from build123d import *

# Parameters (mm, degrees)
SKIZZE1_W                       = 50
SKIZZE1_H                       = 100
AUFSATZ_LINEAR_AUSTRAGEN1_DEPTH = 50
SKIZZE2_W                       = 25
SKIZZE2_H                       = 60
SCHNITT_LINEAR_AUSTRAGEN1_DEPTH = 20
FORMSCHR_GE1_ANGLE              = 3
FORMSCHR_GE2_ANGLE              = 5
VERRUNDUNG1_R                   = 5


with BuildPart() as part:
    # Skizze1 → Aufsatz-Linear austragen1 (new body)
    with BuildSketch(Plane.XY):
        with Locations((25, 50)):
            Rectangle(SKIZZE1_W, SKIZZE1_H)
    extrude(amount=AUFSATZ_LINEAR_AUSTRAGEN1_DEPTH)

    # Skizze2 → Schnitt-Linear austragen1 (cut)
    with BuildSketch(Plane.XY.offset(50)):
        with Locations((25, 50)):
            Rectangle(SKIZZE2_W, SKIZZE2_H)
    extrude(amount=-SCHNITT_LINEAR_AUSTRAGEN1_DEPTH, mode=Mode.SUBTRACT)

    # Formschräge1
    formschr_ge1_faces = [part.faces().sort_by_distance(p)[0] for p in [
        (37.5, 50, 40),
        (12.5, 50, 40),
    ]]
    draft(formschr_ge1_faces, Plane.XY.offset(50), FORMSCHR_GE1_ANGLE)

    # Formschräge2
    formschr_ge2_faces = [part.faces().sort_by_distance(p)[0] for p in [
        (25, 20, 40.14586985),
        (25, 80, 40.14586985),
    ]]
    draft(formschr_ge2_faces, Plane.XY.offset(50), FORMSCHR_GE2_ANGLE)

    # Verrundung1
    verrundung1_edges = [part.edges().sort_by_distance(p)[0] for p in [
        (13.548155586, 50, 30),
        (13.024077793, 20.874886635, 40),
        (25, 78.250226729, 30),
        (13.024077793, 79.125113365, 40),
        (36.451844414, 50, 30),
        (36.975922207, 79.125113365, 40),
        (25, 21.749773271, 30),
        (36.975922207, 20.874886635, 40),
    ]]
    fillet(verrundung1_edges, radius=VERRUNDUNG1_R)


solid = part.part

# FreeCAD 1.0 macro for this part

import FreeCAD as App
import Part
import Sketcher
from FreeCAD import Vector
Q = App.Units.Quantity


def edges_at(feature, points):
    """Names of the edges that pass closest to the given points."""
    edges = feature.Shape.Edges
    near = lambda p: min(range(len(edges)), key=lambda i: edges[i].distToShape(Part.Vertex(*p))[0])
    return sorted({f"Edge{near(p) + 1}" for p in points})


def faces_at(feature, points):
    """Names of the faces that lie closest to the given points."""
    faces = feature.Shape.Faces
    near = lambda p: min(range(len(faces)), key=lambda i: faces[i].distToShape(Part.Vertex(*p))[0])
    return sorted({f"Face{near(p) + 1}" for p in points})

doc = App.newDocument("Part")
body = doc.addObject("PartDesign::Body", "Body")

sketch1 = body.newObject("Sketcher::SketchObject", "Sketch")
sketch1.AttachmentSupport = (doc.getObject("XY_Plane"), [""])
sketch1.MapMode = "FlatFace"
sketch1.addGeometry(Part.LineSegment(Vector(0, 100, 0), Vector(0, 0, 0)), False)
sketch1.addGeometry(Part.LineSegment(Vector(0, 0, 0), Vector(50, 0, 0)), False)
sketch1.addGeometry(Part.LineSegment(Vector(50, 0, 0), Vector(50, 100, 0)), False)
sketch1.addGeometry(Part.LineSegment(Vector(50, 100, 0), Vector(0, 100, 0)), False)
sketch1.addConstraint(Sketcher.Constraint("Coincident", 0, 2, 1, 1))
sketch1.addConstraint(Sketcher.Constraint("Coincident", 1, 2, 2, 1))
sketch1.addConstraint(Sketcher.Constraint("Coincident", 2, 2, 3, 1))
sketch1.addConstraint(Sketcher.Constraint("Coincident", 3, 2, 0, 1))
sketch1.addConstraint(Sketcher.Constraint("Vertical", 0))
sketch1.addConstraint(Sketcher.Constraint("Horizontal", 1))
sketch1.addConstraint(Sketcher.Constraint("Vertical", 2))
sketch1.addConstraint(Sketcher.Constraint("Horizontal", 3))
sketch1.addConstraint(Sketcher.Constraint("Coincident", 0, 2, -1, 1))
sketch1.addConstraint(Sketcher.Constraint("DistanceX", 1, 1, 1, 2, Q("50 mm")))
sketch1.addConstraint(Sketcher.Constraint("DistanceY", 0, 2, 0, 1, Q("100 mm")))
pad1 = body.newObject("PartDesign::Pad", "Pad")
pad1.Profile = sketch1
pad1.Length = 50

sketch2 = body.newObject("Sketcher::SketchObject", "Sketch001")
sketch2.AttachmentSupport = (doc.getObject("XY_Plane"), [""])
sketch2.MapMode = "FlatFace"
sketch2.AttachmentOffset = App.Placement(Vector(0, 0, 50), App.Rotation())
sketch2.addGeometry(Part.LineSegment(Vector(12.5, 80, 0), Vector(12.5, 20, 0)), False)
sketch2.addGeometry(Part.LineSegment(Vector(12.5, 20, 0), Vector(37.5, 20, 0)), False)
sketch2.addGeometry(Part.LineSegment(Vector(37.5, 20, 0), Vector(37.5, 80, 0)), False)
sketch2.addGeometry(Part.LineSegment(Vector(37.5, 80, 0), Vector(12.5, 80, 0)), False)
sketch2.addConstraint(Sketcher.Constraint("Coincident", 0, 2, 1, 1))
sketch2.addConstraint(Sketcher.Constraint("Coincident", 1, 2, 2, 1))
sketch2.addConstraint(Sketcher.Constraint("Coincident", 2, 2, 3, 1))
sketch2.addConstraint(Sketcher.Constraint("Coincident", 3, 2, 0, 1))
sketch2.addConstraint(Sketcher.Constraint("Vertical", 0))
sketch2.addConstraint(Sketcher.Constraint("Horizontal", 1))
sketch2.addConstraint(Sketcher.Constraint("Vertical", 2))
sketch2.addConstraint(Sketcher.Constraint("Horizontal", 3))
sketch2.addConstraint(Sketcher.Constraint("DistanceX", 1, 1, 1, 2, Q("25 mm")))
sketch2.addConstraint(Sketcher.Constraint("DistanceY", 0, 2, 0, 1, Q("60 mm")))
sketch2.addConstraint(Sketcher.Constraint("DistanceY", -1, 1, 0, 2, Q("20 mm")))
sketch2.addConstraint(Sketcher.Constraint("DistanceX", -1, 1, 0, 2, Q("12.5 mm")))
pocket1 = body.newObject("PartDesign::Pocket", "Pocket")
pocket1.Profile = sketch2
pocket1.Length = 20
doc.recompute()

datumplane = body.newObject("PartDesign::Plane", "DatumPlane")
datumplane.AttachmentSupport = (doc.getObject("XY_Plane"), [""])
datumplane.MapMode = "FlatFace"
datumplane.AttachmentOffset = App.Placement(Vector(0, 0, 50), App.Rotation())
draft = body.newObject("PartDesign::Draft", "Draft")
draft.Base = (pocket1, faces_at(pocket1, [(37.5, 50, 40), (12.5, 50, 40)]))
draft.NeutralPlane = (datumplane, [""])
draft.Angle = 3
draft.Reversed = False
doc.recompute()

datumplane2 = body.newObject("PartDesign::Plane", "DatumPlane001")
datumplane2.AttachmentSupport = (doc.getObject("XY_Plane"), [""])
datumplane2.MapMode = "FlatFace"
datumplane2.AttachmentOffset = App.Placement(Vector(0, 0, 50), App.Rotation())
draft2 = body.newObject("PartDesign::Draft", "Draft001")
draft2.Base = (draft, faces_at(draft, [(25, 20, 40), (25, 80, 40)]))
draft2.NeutralPlane = (datumplane2, [""])
draft2.Angle = 5
draft2.Reversed = False
doc.recompute()

fillet = body.newObject("PartDesign::Fillet", "Fillet")
fillet.Base = (draft2, edges_at(draft2, [
    (13.548, 50, 30),
    (13.024, 20.875, 40),
    (25, 78.25, 30),
    (13.024, 79.125, 40),
    (36.452, 50, 30),
    (36.976, 79.125, 40),
    (25, 21.75, 30),
    (36.976, 20.875, 40),
]))
fillet.Radius = 5

doc.recompute()
